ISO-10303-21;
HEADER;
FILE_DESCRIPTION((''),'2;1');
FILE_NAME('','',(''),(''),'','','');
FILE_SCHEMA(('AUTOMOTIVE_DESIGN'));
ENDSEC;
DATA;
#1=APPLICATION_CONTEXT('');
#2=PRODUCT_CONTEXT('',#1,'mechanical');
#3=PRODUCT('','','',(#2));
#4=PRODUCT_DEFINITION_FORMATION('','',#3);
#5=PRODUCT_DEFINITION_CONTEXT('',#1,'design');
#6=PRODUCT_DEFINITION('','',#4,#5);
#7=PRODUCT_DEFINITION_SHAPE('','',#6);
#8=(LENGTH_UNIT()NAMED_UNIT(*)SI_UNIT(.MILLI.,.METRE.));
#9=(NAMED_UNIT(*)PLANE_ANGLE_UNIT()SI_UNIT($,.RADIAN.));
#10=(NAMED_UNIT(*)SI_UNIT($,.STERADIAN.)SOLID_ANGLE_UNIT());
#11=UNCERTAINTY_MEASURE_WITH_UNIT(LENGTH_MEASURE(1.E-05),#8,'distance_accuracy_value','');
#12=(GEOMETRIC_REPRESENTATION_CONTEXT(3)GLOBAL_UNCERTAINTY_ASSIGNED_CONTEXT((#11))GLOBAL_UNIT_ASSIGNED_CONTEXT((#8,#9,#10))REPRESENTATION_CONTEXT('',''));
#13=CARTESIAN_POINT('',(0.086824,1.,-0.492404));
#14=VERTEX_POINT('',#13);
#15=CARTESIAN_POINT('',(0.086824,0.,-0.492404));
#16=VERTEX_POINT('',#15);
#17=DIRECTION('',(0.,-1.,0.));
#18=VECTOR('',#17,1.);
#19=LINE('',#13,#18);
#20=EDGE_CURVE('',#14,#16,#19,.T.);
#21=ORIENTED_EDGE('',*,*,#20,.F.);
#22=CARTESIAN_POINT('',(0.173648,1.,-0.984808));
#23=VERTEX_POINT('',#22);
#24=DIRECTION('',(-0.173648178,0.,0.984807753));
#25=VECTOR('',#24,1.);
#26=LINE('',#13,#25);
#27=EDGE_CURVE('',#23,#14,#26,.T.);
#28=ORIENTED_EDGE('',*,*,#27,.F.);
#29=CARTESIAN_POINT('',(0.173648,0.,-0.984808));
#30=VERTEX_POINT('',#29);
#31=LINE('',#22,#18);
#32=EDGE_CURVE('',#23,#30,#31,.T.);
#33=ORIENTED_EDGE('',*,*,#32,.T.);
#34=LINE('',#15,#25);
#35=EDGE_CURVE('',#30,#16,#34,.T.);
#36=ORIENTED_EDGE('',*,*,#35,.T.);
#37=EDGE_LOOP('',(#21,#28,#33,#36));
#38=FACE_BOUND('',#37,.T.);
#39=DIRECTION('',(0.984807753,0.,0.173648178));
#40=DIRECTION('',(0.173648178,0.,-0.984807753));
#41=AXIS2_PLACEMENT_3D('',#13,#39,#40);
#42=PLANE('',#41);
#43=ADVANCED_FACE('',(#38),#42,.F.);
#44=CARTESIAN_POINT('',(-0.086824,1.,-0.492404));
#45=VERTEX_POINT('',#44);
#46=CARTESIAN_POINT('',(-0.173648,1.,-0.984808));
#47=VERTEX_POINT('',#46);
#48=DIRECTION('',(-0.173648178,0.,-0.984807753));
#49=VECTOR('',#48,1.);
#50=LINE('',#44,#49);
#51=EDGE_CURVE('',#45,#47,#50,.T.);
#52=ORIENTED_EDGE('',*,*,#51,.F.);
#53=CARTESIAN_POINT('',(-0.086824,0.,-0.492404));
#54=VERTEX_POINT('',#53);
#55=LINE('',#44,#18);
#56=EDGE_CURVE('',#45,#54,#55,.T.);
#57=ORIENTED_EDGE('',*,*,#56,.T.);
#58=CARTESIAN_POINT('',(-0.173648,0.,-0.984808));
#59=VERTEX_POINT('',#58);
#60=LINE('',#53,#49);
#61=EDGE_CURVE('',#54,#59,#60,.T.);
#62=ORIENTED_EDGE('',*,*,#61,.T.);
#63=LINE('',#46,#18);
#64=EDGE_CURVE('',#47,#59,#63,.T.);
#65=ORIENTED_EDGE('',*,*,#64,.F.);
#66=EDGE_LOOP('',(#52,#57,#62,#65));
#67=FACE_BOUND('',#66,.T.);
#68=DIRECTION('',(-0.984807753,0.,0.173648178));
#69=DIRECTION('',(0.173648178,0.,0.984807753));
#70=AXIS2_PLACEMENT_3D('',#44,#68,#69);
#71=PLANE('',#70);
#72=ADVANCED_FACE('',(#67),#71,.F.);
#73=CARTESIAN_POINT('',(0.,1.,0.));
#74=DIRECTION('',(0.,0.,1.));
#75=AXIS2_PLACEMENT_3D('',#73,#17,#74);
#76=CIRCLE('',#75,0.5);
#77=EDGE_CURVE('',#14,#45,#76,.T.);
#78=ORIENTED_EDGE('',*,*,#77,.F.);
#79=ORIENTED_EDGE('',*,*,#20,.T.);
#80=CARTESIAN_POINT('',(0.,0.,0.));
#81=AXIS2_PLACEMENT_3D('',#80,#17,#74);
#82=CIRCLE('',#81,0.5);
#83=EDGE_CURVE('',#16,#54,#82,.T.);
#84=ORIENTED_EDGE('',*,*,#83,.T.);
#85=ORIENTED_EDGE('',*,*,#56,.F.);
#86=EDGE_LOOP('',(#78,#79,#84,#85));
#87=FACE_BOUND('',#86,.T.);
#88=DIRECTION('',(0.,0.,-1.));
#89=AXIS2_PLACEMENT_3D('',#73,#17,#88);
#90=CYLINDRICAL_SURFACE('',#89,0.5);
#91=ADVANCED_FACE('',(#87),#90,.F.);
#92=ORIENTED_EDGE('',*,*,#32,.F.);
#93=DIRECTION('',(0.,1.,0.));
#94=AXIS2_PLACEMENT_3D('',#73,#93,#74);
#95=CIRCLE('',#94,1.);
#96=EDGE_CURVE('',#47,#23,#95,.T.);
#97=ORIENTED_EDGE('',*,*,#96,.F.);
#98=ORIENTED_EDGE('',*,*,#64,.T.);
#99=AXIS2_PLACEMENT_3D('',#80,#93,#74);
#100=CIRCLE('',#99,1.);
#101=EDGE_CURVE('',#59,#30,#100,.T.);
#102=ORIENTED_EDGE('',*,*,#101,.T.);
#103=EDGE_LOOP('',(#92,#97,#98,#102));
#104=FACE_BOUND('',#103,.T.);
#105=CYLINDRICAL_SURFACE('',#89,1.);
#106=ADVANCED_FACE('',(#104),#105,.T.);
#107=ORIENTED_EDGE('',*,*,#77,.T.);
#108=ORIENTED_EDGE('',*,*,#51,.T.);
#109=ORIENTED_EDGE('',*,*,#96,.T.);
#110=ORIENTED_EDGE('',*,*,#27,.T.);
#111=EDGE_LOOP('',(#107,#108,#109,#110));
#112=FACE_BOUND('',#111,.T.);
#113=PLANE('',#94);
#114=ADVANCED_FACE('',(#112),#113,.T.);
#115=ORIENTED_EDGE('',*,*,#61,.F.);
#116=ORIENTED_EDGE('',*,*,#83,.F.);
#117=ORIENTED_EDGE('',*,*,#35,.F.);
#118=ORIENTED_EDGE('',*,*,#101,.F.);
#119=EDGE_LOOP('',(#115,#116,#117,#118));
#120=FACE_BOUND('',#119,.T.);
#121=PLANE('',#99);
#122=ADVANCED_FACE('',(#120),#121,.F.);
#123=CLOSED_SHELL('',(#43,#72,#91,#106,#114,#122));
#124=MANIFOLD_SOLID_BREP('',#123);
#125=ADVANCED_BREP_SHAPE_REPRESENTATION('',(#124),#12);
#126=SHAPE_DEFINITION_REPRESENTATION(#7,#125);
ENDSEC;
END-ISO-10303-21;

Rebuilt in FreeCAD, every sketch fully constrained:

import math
import FreeCAD as App
import Part
import Sketcher

V = App.Vector
Q = App.Units.Quantity

doc = App.newDocument("Part")
body = doc.addObject("PartDesign::Body", "Body")

sketch1 = body.newObject("Sketcher::SketchObject", "Sketch")
sketch1.AttachmentSupport = (doc.getObject("XZ_Plane"), [""])
sketch1.MapMode = "FlatFace"
sketch1.addGeometry(Part.LineSegment(V(0.173648, -0.984808, 0), V(0.086824, -0.492404, 0)), False)
sketch1.addGeometry(Part.ArcOfCircle(Part.Circle(V(0, 0, 0), V(0, 0, 1), 0.5), math.radians(-80), math.radians(260)), False)
sketch1.addGeometry(Part.LineSegment(V(-0.086824, -0.492404, 0), V(-0.173648, -0.984808, 0)), False)
sketch1.addGeometry(Part.ArcOfCircle(Part.Circle(V(0, 0, 0), V(0, 0, 1), 1), math.radians(-80), math.radians(260)), False)
sketch1.addConstraint(Sketcher.Constraint("Coincident", 0, 2, 1, 1))
sketch1.addConstraint(Sketcher.Constraint("Coincident", 1, 2, 2, 1))
sketch1.addConstraint(Sketcher.Constraint("Coincident", 2, 2, 3, 2))
sketch1.addConstraint(Sketcher.Constraint("Coincident", 3, 1, 0, 1))
sketch1.addConstraint(Sketcher.Constraint("Coincident", 1, 3, -1, 1))
sketch1.addConstraint(Sketcher.Constraint("Coincident", 3, 3, -1, 1))
sketch1.addConstraint(Sketcher.Constraint("Horizontal", 0, 2, 1, 2))
sketch1.addConstraint(Sketcher.Constraint("Horizontal", 2, 2, 3, 1))
sketch1.addConstraint(Sketcher.Constraint("Radius", 3, 1.0))
sketch1.addConstraint(Sketcher.Constraint("Radius", 1, 0.5))
sketch1.addConstraint(Sketcher.Constraint("Angle", 0, Q("100 deg")))
sketch1.addConstraint(Sketcher.Constraint("DistanceX", 2, 2, -1, 1, 0.173648))
pad1 = body.newObject("PartDesign::Pad", "Pad")
pad1.Profile = sketch1
pad1.Length = 1
pad1.Reversed = True

doc.recompute()
